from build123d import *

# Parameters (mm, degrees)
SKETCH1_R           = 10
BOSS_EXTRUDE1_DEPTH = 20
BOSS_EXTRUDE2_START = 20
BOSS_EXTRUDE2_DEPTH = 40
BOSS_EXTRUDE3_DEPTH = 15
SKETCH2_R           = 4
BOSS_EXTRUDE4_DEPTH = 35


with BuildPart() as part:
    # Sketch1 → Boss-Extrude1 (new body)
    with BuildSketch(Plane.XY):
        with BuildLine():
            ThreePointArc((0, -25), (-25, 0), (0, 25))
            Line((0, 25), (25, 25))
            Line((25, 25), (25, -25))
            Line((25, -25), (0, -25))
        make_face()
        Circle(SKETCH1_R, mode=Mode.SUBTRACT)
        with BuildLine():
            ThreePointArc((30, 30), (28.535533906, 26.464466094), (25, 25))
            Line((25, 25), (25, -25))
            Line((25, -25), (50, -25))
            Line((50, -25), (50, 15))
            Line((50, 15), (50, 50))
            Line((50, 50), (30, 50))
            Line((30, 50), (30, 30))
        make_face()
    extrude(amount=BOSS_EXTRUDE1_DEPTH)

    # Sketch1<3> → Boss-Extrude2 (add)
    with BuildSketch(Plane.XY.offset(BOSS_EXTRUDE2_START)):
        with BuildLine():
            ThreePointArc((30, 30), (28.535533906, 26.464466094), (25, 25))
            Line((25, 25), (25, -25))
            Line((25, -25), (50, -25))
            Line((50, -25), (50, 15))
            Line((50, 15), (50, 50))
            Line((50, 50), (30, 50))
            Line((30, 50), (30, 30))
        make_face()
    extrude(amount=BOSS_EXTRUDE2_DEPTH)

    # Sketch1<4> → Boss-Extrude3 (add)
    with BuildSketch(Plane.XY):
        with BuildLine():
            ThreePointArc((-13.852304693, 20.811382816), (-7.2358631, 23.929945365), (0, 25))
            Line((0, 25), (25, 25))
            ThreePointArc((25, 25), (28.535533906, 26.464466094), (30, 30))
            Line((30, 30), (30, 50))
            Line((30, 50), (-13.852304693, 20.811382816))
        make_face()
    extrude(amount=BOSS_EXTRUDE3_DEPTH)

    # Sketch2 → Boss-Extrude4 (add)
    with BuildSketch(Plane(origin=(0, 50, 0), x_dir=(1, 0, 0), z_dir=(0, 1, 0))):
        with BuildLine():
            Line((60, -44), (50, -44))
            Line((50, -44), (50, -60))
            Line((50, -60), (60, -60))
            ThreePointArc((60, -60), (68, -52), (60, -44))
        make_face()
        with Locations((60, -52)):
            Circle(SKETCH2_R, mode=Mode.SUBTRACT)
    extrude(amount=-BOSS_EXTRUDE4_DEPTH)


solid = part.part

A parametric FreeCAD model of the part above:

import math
import FreeCAD as App
import Part
import Sketcher

doc = App.newDocument("Part")
body = doc.addObject("PartDesign::Body", "Body")

# Sketch on XY plane
sketch1 = body.newObject("Sketcher::SketchObject", "Sketch")
sketch1.AttachmentSupport = (doc.getObject("XY_Plane"), [""])
sketch1.MapMode = "FlatFace"
sketch1.addGeometry([
    Part.ArcOfCircle(Part.Circle(App.Vector(0, 0, 0), App.Vector(0, 0, 1), 25), math.radians(90), math.radians(270)),  # 0
    Part.LineSegment(App.Vector(0, -25, 0), App.Vector(50, -25, 0)),  # 1
    Part.LineSegment(App.Vector(50, -25, 0), App.Vector(50, 50, 0)),  # 2
    Part.LineSegment(App.Vector(50, 50, 0), App.Vector(30, 50, 0)),  # 3
    Part.LineSegment(App.Vector(30, 50, 0), App.Vector(30, 30, 0)),  # 4
    Part.ArcOfCircle(Part.Circle(App.Vector(25, 30, 0), App.Vector(0, 0, 1), 5), math.radians(-90), math.radians(0)),  # 5
    Part.LineSegment(App.Vector(25, 25, 0), App.Vector(0, 25, 0)),  # 6
    Part.Circle(App.Vector(0, 0, 0), App.Vector(0, 0, 1), 10),  # 7
], False)
sketch1.addConstraint([
    Sketcher.Constraint("Tangent", 0, 2, 1, 1),
    Sketcher.Constraint("Coincident", 1, 2, 2, 1),
    Sketcher.Constraint("Coincident", 2, 2, 3, 1),
    Sketcher.Constraint("Coincident", 3, 2, 4, 1),
    Sketcher.Constraint("Tangent", 4, 2, 5, 2),
    Sketcher.Constraint("Tangent", 5, 1, 6, 1),
    Sketcher.Constraint("Tangent", 6, 2, 0, 1),
    Sketcher.Constraint("Horizontal", 1),
    Sketcher.Constraint("Vertical", 2),
    Sketcher.Constraint("Horizontal", 3),
    Sketcher.Constraint("Vertical", 4),
    Sketcher.Constraint("Horizontal", 6),
    Sketcher.Constraint("Coincident", 0, 3, -1, 1),
    Sketcher.Constraint("Coincident", 7, 3, -1, 1),
    Sketcher.Constraint("Equal", 3, 4),
    Sketcher.Constraint("Diameter", 7, 20.0),
    Sketcher.Constraint("Radius", 0, 25.0),
    Sketcher.Constraint("Radius", 5, 5.0),
    Sketcher.Constraint("DistanceX", 1, 1, 1, 2, 50.0),
    Sketcher.Constraint("DistanceX", 3, 2, 3, 1, 20.0),
])
pad1 = body.newObject("PartDesign::Pad", "Pad")
pad1.Profile = sketch1
pad1.Length = 20

# Sketch on XY plane
sketch2 = body.newObject("Sketcher::SketchObject", "Sketch001")
sketch2.AttachmentSupport = (doc.getObject("XY_Plane"), [""])
sketch2.MapMode = "FlatFace"
sketch2.AttachmentOffset = App.Placement(App.Vector(0, 0, 20), App.Rotation())
sketch2.addGeometry([
    Part.ArcOfCircle(Part.Circle(App.Vector(25, 30, 0), App.Vector(0, 0, 1), 5), math.radians(-90), math.radians(0)),  # 0
    Part.LineSegment(App.Vector(25, 25, 0), App.Vector(25, -25, 0)),  # 1
    Part.LineSegment(App.Vector(25, -25, 0), App.Vector(50, -25, 0)),  # 2
    Part.LineSegment(App.Vector(50, -25, 0), App.Vector(50, 50, 0)),  # 3
    Part.LineSegment(App.Vector(50, 50, 0), App.Vector(30, 50, 0)),  # 4
    Part.LineSegment(App.Vector(30, 50, 0), App.Vector(30, 30, 0)),  # 5
], False)
sketch2.addConstraint([
    Sketcher.Constraint("Coincident", 0, 1, 1, 1),
    Sketcher.Constraint("Coincident", 1, 2, 2, 1),
    Sketcher.Constraint("Coincident", 2, 2, 3, 1),
    Sketcher.Constraint("Coincident", 3, 2, 4, 1),
    Sketcher.Constraint("Coincident", 4, 2, 5, 1),
    Sketcher.Constraint("Tangent", 5, 2, 0, 2),
    Sketcher.Constraint("Vertical", 1),
    Sketcher.Constraint("Horizontal", 2),
    Sketcher.Constraint("Vertical", 3),
    Sketcher.Constraint("Horizontal", 4),
    Sketcher.Constraint("Vertical", 5),
    Sketcher.Constraint("Equal", 4, 5),
    Sketcher.Constraint("Radius", 0, 5.0),
    Sketcher.Constraint("DistanceX", 2, 1, 2, 2, 25.0),
    Sketcher.Constraint("DistanceX", 4, 2, 4, 1, 20.0),
    Sketcher.Constraint("DistanceY", 1, 2, 1, 1, 50.0),
    Sketcher.Constraint("DistanceX", -1, 1, 0, 3, 25.0),
    Sketcher.Constraint("DistanceY", -1, 1, 0, 3, 30.0),
])
pad2 = body.newObject("PartDesign::Pad", "Pad001")
pad2.Profile = sketch2
pad2.Length = 40

# Sketch on XY plane
sketch3 = body.newObject("Sketcher::SketchObject", "Sketch002")
sketch3.AttachmentSupport = (doc.getObject("XY_Plane"), [""])
sketch3.MapMode = "FlatFace"
sketch3.addGeometry([
    Part.ArcOfCircle(Part.Circle(App.Vector(0, 0, 0), App.Vector(0, 0, 1), 25), math.radians(90), math.radians(124)),  # 0
    Part.LineSegment(App.Vector(0, 25, 0), App.Vector(25, 25, 0)),  # 1
    Part.ArcOfCircle(Part.Circle(App.Vector(25, 30, 0), App.Vector(0, 0, 1), 5), math.radians(-90), math.radians(0)),  # 2
    Part.LineSegment(App.Vector(30, 30, 0), App.Vector(30, 50, 0)),  # 3
    Part.LineSegment(App.Vector(30, 50, 0), App.Vector(-14, 21, 0)),  # 4
], False)
sketch3.addConstraint([
    Sketcher.Constraint("Tangent", 0, 1, 1, 1),
    Sketcher.Constraint("Tangent", 1, 2, 2, 1),
    Sketcher.Constraint("Tangent", 2, 2, 3, 1),
    Sketcher.Constraint("Coincident", 3, 2, 4, 1),
    Sketcher.Constraint("Tangent", 4, 2, 0, 2),
    Sketcher.Constraint("Horizontal", 1),
    Sketcher.Constraint("Vertical", 3),
    Sketcher.Constraint("Coincident", 0, 3, -1, 1),
    Sketcher.Constraint("Radius", 0, 25.0),
    Sketcher.Constraint("Radius", 2, 5.0),
    Sketcher.Constraint("DistanceX", 1, 1, 1, 2, 25.0),
    Sketcher.Constraint("DistanceY", 3, 1, 3, 2, 20.0),
])
pad3 = body.newObject("PartDesign::Pad", "Pad002")
pad3.Profile = sketch3
pad3.Length = 15

# Sketch on XZ plane
sketch4 = body.newObject("Sketcher::SketchObject", "Sketch003")
sketch4.AttachmentSupport = (doc.getObject("XZ_Plane"), [""])
sketch4.MapMode = "FlatFace"
sketch4.AttachmentOffset = App.Placement(App.Vector(0, 0, -50), App.Rotation())
sketch4.addGeometry([
    Part.LineSegment(App.Vector(60, 44, 0), App.Vector(50, 44, 0)),  # 0
    Part.LineSegment(App.Vector(50, 44, 0), App.Vector(50, 60, 0)),  # 1
    Part.LineSegment(App.Vector(50, 60, 0), App.Vector(60, 60, 0)),  # 2
    Part.ArcOfCircle(Part.Circle(App.Vector(60, 52, 0), App.Vector(0, 0, 1), 8), math.radians(-90), math.radians(90)),  # 3
    Part.Circle(App.Vector(60, 52, 0), App.Vector(0, 0, 1), 4),  # 4
], False)
sketch4.addConstraint([
    Sketcher.Constraint("Coincident", 0, 2, 1, 1),
    Sketcher.Constraint("Coincident", 1, 2, 2, 1),
    Sketcher.Constraint("Tangent", 2, 2, 3, 2),
    Sketcher.Constraint("Tangent", 3, 1, 0, 1),
    Sketcher.Constraint("Horizontal", 0),
    Sketcher.Constraint("Vertical", 1),
    Sketcher.Constraint("Horizontal", 2),
    Sketcher.Constraint("Coincident", 4, 3, 3, 3),
    Sketcher.Constraint("Diameter", 4, 8.0),
    Sketcher.Constraint("Radius", 3, 8.0),
    Sketcher.Constraint("DistanceX", 0, 2, 0, 1, 10.0),
    Sketcher.Constraint("DistanceX", -1, 1, 3, 3, 60.0),
    Sketcher.Constraint("DistanceY", -1, 1, 3, 3, 52.0),
])
pad4 = body.newObject("PartDesign::Pad", "Pad003")
pad4.Profile = sketch4
pad4.Length = 35

doc.recompute()
